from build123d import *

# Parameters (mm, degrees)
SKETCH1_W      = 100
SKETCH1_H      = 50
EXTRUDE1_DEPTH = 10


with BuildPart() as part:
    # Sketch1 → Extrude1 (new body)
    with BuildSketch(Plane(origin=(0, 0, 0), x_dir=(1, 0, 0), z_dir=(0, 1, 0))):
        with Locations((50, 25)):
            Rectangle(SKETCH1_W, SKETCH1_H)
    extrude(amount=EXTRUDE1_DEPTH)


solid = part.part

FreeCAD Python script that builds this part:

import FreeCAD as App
import Part
import Sketcher

doc = App.newDocument("Part")
body = doc.addObject("PartDesign::Body", "Body")

# Sketch on XZ plane
sketch1 = doc.addObject("Sketcher::SketchObject", "Sketch")
body.addObject(sketch1)
sketch1.AttachmentSupport = (doc.XZ_Plane, [""])
sketch1.MapMode = "FlatFace"
sketch1.addGeometry([
    Part.LineSegment(App.Vector(0, -50, 0), App.Vector(0, 0, 0)),
    Part.LineSegment(App.Vector(0, 0, 0), App.Vector(100, 0, 0)),
    Part.LineSegment(App.Vector(100, 0, 0), App.Vector(100, -50, 0)),
    Part.LineSegment(App.Vector(100, -50, 0), App.Vector(0, -50, 0)),
], False)
sketch1.addConstraint([
    Sketcher.Constraint("Coincident", 0, 2, 1, 1),
    Sketcher.Constraint("Coincident", 1, 2, 2, 1),
    Sketcher.Constraint("Coincident", 2, 2, 3, 1),
    Sketcher.Constraint("Coincident", 3, 2, 0, 1),
    Sketcher.Constraint("Vertical", 0),
    Sketcher.Constraint("Horizontal", 1),
    Sketcher.Constraint("Vertical", 2),
    Sketcher.Constraint("Horizontal", 3),
    Sketcher.Constraint("Coincident", 0, 2, -1, 1),
    Sketcher.Constraint("DistanceX", 1, 1, 1, 2, 100.0),
    Sketcher.Constraint("DistanceY", 0, 1, 0, 2, 50.0),
])
pad1 = doc.addObject("PartDesign::Pad", "Pad")
body.addObject(pad1)
pad1.Profile = sketch1
pad1.Length = 10
pad1.Reversed = True

doc.recompute()
